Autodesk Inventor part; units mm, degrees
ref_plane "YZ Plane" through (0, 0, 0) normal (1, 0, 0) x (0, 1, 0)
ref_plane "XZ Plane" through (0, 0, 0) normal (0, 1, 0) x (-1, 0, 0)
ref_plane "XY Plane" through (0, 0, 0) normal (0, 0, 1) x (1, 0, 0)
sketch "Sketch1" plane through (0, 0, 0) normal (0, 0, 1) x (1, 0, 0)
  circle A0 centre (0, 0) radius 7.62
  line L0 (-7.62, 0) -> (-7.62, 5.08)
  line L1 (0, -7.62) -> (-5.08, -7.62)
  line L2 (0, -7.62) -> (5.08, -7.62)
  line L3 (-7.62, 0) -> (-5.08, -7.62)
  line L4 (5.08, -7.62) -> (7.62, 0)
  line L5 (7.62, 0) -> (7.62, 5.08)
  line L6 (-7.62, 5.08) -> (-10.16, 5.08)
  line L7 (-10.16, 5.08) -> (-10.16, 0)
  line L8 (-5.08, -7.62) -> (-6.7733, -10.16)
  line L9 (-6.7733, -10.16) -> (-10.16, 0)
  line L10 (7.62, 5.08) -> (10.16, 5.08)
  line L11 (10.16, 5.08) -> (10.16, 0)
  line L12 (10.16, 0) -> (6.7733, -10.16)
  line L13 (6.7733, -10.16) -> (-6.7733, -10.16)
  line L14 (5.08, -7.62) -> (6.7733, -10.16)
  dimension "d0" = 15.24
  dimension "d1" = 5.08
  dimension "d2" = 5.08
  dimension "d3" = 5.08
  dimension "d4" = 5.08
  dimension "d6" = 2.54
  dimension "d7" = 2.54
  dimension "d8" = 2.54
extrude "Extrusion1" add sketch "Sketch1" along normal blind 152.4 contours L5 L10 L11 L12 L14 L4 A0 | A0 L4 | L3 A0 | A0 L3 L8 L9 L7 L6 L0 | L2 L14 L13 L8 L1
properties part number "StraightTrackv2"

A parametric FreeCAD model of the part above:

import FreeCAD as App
import Part
import Sketcher

V = App.Vector
Q = App.Units.Quantity

doc = App.newDocument("Part")
body = doc.addObject("PartDesign::Body", "Body")

# Sketch on XY plane
sketch1 = body.newObject("Sketcher::SketchObject", "Sketch")
sketch1.AttachmentSupport = (doc.getObject("XY_Plane"), [""])
sketch1.MapMode = "FlatFace"
sketch1.addGeometry([
    Part.LineSegment(V(7.62, 5.08, 0), V(7.62, 0, 0)),  # 0
    Part.LineSegment(V(7.62, 0, 0), V(5.08, -7.62, 0)),  # 1
    Part.LineSegment(V(5.08, -7.62, 0), V(-5.08, -7.62, 0)),  # 2
    Part.LineSegment(V(-5.08, -7.62, 0), V(-7.62, 0, 0)),  # 3
    Part.LineSegment(V(-7.62, 0, 0), V(-7.62, 5.08, 0)),  # 4
    Part.LineSegment(V(-7.62, 5.08, 0), V(-10.16, 5.08, 0)),  # 5
    Part.LineSegment(V(-10.16, 5.08, 0), V(-10.16, 0, 0)),  # 6
    Part.LineSegment(V(-10.16, 0, 0), V(-6.7733, -10.16, 0)),  # 7
    Part.LineSegment(V(-6.7733, -10.16, 0), V(6.7733, -10.16, 0)),  # 8
    Part.LineSegment(V(6.7733, -10.16, 0), V(10.16, 0, 0)),  # 9
    Part.LineSegment(V(10.16, 0, 0), V(10.16, 5.08, 0)),  # 10
    Part.LineSegment(V(10.16, 5.08, 0), V(7.62, 5.08, 0)),  # 11
], False)
sketch1.addConstraint([
    Sketcher.Constraint("Coincident", 0, 2, 1, 1),
    Sketcher.Constraint("Coincident", 1, 2, 2, 1),
    Sketcher.Constraint("Coincident", 2, 2, 3, 1),
    Sketcher.Constraint("Coincident", 3, 2, 4, 1),
    Sketcher.Constraint("Coincident", 4, 2, 5, 1),
    Sketcher.Constraint("Coincident", 5, 2, 6, 1),
    Sketcher.Constraint("Coincident", 6, 2, 7, 1),
    Sketcher.Constraint("Coincident", 7, 2, 8, 1),
    Sketcher.Constraint("Coincident", 8, 2, 9, 1),
    Sketcher.Constraint("Coincident", 9, 2, 10, 1),
    Sketcher.Constraint("Coincident", 10, 2, 11, 1),
    Sketcher.Constraint("Coincident", 11, 2, 0, 1),
    Sketcher.Constraint("Vertical", 0),
    Sketcher.Constraint("Horizontal", 2),
    Sketcher.Constraint("Vertical", 4),
    Sketcher.Constraint("Horizontal", 5),
    Sketcher.Constraint("Vertical", 6),
    Sketcher.Constraint("Horizontal", 8),
    Sketcher.Constraint("Vertical", 10),
    Sketcher.Constraint("Horizontal", 11),
    Sketcher.Constraint("Symmetric", 0, 2, 3, 2, -1, 1),
    Sketcher.Constraint("Symmetric", 6, 2, 9, 2, -1, 1),
    Sketcher.Constraint("PointOnObject", 0, 2, -1),
    Sketcher.Constraint("PointOnObject", 6, 2, -1),
    Sketcher.Constraint("Parallel", 3, 7),
    Sketcher.Constraint("Parallel", 1, 9),
    Sketcher.Constraint("Horizontal", 5, 2, 10, 2),
    Sketcher.Constraint("Equal", 1, 3),
    Sketcher.Constraint("DistanceX", 5, 2, 5, 1, Q("0.1 in")),
    Sketcher.Constraint("DistanceY", 0, 2, 0, 1, Q("0.2 in")),
    Sketcher.Constraint("DistanceX", -1, 1, 1, 2, Q("0.2 in")),
    Sketcher.Constraint("DistanceX", 1, 2, 0, 2, Q("0.1 in")),
    Sketcher.Constraint("DistanceY", 7, 2, 2, 2, Q("0.1 in")),
    Sketcher.Constraint("DistanceY", 7, 2, 4, 2, Q("0.6 in")),
])
pad1 = body.newObject("PartDesign::Pad", "Pad")
pad1.Profile = sketch1
pad1.Length = Q("6 in")

doc.recompute()
